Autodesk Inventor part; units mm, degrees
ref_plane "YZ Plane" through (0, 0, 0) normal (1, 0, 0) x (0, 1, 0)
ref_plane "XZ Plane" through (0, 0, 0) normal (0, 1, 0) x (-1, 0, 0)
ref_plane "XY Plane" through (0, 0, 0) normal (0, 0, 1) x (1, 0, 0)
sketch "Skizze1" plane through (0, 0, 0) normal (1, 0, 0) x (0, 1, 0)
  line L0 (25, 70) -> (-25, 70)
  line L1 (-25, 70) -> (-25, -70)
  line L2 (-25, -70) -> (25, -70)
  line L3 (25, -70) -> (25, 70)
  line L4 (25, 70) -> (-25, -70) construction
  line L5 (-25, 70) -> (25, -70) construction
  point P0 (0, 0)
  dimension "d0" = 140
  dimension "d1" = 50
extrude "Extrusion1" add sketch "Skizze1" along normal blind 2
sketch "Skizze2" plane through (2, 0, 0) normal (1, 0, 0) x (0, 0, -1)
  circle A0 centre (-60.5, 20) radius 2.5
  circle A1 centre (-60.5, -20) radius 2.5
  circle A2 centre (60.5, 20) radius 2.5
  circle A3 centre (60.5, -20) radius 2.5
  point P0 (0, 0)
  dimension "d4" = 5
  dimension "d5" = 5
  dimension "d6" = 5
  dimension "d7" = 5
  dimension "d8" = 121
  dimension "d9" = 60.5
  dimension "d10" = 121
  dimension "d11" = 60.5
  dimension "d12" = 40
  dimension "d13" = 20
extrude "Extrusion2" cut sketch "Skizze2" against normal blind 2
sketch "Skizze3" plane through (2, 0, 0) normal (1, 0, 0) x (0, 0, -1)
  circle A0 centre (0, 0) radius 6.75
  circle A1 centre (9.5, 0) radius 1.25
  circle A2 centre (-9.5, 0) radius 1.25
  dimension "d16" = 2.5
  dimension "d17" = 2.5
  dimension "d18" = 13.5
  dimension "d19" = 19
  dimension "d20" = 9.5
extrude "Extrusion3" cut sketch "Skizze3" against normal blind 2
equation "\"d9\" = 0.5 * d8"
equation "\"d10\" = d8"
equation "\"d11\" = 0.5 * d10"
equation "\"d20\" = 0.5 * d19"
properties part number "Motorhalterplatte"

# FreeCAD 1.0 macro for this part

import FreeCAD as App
import Part
import Sketcher
from FreeCAD import Vector


def add_polygon(sketch, points):
    """Adds a closed chain of lines whose ends are joined by coincident constraints."""
    first, n = sketch.GeometryCount, len(points)
    for a, b in zip(points, points[1:] + points[:1]):
        sketch.addGeometry(Part.LineSegment(App.Vector(*a, 0), App.Vector(*b, 0)), False)
    for i in range(n):
        sketch.addConstraint(Sketcher.Constraint("Coincident", first + i, 2, first + (i + 1) % n, 1))

doc = App.newDocument("Part")
params = doc.addObject("Spreadsheet::Sheet", "Params")
for row, (alias, value) in enumerate([
    ("sketch1_width", "50 mm"),
    ("sketch1_height", "140 mm"),
    ("pad1_length", "2 mm"),
    ("sketch2_diameter", "5 mm"),
    ("pocket1_length", "2 mm"),
    ("sketch3_diameter", "13.5 mm"),
    ("sketch3_diameter2", "2.5 mm"),
    ("pocket2_length", "2 mm"),
], start=1):
    params.set(f"A{row}", alias)
    params.set(f"B{row}", "=" + value)
    params.setAlias(f"B{row}", alias)

body = doc.addObject("PartDesign::Body", "Body")

sketch1 = body.newObject("Sketcher::SketchObject", "Sketch")
sketch1.AttachmentSupport = (doc.getObject("YZ_Plane"), [""])
sketch1.MapMode = "FlatFace"
add_polygon(sketch1, [(25, -70), (25, 70), (-25, 70), (-25, -70)])
sketch1.addConstraint(Sketcher.Constraint("Vertical", 0))
sketch1.addConstraint(Sketcher.Constraint("Horizontal", 1))
sketch1.addConstraint(Sketcher.Constraint("Vertical", 2))
sketch1.addConstraint(Sketcher.Constraint("Horizontal", 3))
sketch1.addConstraint(Sketcher.Constraint("Symmetric", 0, 2, 2, 2, -1, 1))
sketch1.addConstraint(Sketcher.Constraint("DistanceX", 1, 2, 1, 1, 50.0))
sketch1.addConstraint(Sketcher.Constraint("DistanceY", 0, 1, 0, 2, 140.0))
sketch1.setExpression("Constraints[9]", "Params.sketch1_width")
sketch1.setExpression("Constraints[10]", "Params.sketch1_height")
pad1 = body.newObject("PartDesign::Pad", "Pad")
pad1.Profile = sketch1
pad1.setExpression("Length", "Params.pad1_length")

sketch2 = body.newObject("Sketcher::SketchObject", "Sketch001")
sketch2.AttachmentSupport = (doc.getObject("YZ_Plane"), [""])
sketch2.MapMode = "FlatFace"
sketch2.AttachmentOffset = App.Placement(Vector(0, 0, 2), App.Rotation())
sketch2.addGeometry(Part.Circle(Vector(20, 60.5, 0), Vector(0, 0, 1), 2.5), False)
sketch2.addGeometry(Part.Circle(Vector(-20, 60.5, 0), Vector(0, 0, 1), 2.5), False)
sketch2.addGeometry(Part.Circle(Vector(20, -60.5, 0), Vector(0, 0, 1), 2.5), False)
sketch2.addGeometry(Part.Circle(Vector(-20, -60.5, 0), Vector(0, 0, 1), 2.5), False)
sketch2.addConstraint(Sketcher.Constraint("Equal", 0, 1))
sketch2.addConstraint(Sketcher.Constraint("Equal", 1, 2))
sketch2.addConstraint(Sketcher.Constraint("Equal", 2, 3))
sketch2.addConstraint(Sketcher.Constraint("Symmetric", 1, 3, 2, 3, -1, 1))
sketch2.addConstraint(Sketcher.Constraint("Symmetric", 0, 3, 3, 3, -1, 1))
sketch2.addConstraint(Sketcher.Constraint("Symmetric", 0, 3, 1, 3, -2))
sketch2.addConstraint(Sketcher.Constraint("Diameter", 0, 5.0))
sketch2.addConstraint(Sketcher.Constraint("DistanceX", -1, 1, 0, 3, 20.0))
sketch2.addConstraint(Sketcher.Constraint("DistanceY", 2, 3, 0, 3, 121.0))
sketch2.setExpression("Constraints[6]", "Params.sketch2_diameter")
pocket1 = body.newObject("PartDesign::Pocket", "Pocket")
pocket1.Profile = sketch2
pocket1.setExpression("Length", "Params.pocket1_length")

sketch3 = body.newObject("Sketcher::SketchObject", "Sketch002")
sketch3.AttachmentSupport = (doc.getObject("YZ_Plane"), [""])
sketch3.MapMode = "FlatFace"
sketch3.AttachmentOffset = App.Placement(Vector(0, 0, 2), App.Rotation())
sketch3.addGeometry(Part.Circle(Vector(0, 0, 0), Vector(0, 0, 1), 6.75), False)
sketch3.addGeometry(Part.Circle(Vector(0, -9.5, 0), Vector(0, 0, 1), 1.25), False)
sketch3.addGeometry(Part.Circle(Vector(0, 9.5, 0), Vector(0, 0, 1), 1.25), False)
sketch3.addConstraint(Sketcher.Constraint("Coincident", 0, 3, -1, 1))
sketch3.addConstraint(Sketcher.Constraint("Equal", 1, 2))
sketch3.addConstraint(Sketcher.Constraint("Symmetric", 1, 3, 2, 3, -1, 1))
sketch3.addConstraint(Sketcher.Constraint("PointOnObject", 1, 3, -2))
sketch3.addConstraint(Sketcher.Constraint("Diameter", 0, 13.5))
sketch3.addConstraint(Sketcher.Constraint("Diameter", 1, 2.5))
sketch3.addConstraint(Sketcher.Constraint("DistanceY", 1, 3, 2, 3, 19.0))
sketch3.setExpression("Constraints[4]", "Params.sketch3_diameter")
sketch3.setExpression("Constraints[5]", "Params.sketch3_diameter2")
pocket2 = body.newObject("PartDesign::Pocket", "Pocket001")
pocket2.Profile = sketch3
pocket2.setExpression("Length", "Params.pocket2_length")

doc.recompute()
